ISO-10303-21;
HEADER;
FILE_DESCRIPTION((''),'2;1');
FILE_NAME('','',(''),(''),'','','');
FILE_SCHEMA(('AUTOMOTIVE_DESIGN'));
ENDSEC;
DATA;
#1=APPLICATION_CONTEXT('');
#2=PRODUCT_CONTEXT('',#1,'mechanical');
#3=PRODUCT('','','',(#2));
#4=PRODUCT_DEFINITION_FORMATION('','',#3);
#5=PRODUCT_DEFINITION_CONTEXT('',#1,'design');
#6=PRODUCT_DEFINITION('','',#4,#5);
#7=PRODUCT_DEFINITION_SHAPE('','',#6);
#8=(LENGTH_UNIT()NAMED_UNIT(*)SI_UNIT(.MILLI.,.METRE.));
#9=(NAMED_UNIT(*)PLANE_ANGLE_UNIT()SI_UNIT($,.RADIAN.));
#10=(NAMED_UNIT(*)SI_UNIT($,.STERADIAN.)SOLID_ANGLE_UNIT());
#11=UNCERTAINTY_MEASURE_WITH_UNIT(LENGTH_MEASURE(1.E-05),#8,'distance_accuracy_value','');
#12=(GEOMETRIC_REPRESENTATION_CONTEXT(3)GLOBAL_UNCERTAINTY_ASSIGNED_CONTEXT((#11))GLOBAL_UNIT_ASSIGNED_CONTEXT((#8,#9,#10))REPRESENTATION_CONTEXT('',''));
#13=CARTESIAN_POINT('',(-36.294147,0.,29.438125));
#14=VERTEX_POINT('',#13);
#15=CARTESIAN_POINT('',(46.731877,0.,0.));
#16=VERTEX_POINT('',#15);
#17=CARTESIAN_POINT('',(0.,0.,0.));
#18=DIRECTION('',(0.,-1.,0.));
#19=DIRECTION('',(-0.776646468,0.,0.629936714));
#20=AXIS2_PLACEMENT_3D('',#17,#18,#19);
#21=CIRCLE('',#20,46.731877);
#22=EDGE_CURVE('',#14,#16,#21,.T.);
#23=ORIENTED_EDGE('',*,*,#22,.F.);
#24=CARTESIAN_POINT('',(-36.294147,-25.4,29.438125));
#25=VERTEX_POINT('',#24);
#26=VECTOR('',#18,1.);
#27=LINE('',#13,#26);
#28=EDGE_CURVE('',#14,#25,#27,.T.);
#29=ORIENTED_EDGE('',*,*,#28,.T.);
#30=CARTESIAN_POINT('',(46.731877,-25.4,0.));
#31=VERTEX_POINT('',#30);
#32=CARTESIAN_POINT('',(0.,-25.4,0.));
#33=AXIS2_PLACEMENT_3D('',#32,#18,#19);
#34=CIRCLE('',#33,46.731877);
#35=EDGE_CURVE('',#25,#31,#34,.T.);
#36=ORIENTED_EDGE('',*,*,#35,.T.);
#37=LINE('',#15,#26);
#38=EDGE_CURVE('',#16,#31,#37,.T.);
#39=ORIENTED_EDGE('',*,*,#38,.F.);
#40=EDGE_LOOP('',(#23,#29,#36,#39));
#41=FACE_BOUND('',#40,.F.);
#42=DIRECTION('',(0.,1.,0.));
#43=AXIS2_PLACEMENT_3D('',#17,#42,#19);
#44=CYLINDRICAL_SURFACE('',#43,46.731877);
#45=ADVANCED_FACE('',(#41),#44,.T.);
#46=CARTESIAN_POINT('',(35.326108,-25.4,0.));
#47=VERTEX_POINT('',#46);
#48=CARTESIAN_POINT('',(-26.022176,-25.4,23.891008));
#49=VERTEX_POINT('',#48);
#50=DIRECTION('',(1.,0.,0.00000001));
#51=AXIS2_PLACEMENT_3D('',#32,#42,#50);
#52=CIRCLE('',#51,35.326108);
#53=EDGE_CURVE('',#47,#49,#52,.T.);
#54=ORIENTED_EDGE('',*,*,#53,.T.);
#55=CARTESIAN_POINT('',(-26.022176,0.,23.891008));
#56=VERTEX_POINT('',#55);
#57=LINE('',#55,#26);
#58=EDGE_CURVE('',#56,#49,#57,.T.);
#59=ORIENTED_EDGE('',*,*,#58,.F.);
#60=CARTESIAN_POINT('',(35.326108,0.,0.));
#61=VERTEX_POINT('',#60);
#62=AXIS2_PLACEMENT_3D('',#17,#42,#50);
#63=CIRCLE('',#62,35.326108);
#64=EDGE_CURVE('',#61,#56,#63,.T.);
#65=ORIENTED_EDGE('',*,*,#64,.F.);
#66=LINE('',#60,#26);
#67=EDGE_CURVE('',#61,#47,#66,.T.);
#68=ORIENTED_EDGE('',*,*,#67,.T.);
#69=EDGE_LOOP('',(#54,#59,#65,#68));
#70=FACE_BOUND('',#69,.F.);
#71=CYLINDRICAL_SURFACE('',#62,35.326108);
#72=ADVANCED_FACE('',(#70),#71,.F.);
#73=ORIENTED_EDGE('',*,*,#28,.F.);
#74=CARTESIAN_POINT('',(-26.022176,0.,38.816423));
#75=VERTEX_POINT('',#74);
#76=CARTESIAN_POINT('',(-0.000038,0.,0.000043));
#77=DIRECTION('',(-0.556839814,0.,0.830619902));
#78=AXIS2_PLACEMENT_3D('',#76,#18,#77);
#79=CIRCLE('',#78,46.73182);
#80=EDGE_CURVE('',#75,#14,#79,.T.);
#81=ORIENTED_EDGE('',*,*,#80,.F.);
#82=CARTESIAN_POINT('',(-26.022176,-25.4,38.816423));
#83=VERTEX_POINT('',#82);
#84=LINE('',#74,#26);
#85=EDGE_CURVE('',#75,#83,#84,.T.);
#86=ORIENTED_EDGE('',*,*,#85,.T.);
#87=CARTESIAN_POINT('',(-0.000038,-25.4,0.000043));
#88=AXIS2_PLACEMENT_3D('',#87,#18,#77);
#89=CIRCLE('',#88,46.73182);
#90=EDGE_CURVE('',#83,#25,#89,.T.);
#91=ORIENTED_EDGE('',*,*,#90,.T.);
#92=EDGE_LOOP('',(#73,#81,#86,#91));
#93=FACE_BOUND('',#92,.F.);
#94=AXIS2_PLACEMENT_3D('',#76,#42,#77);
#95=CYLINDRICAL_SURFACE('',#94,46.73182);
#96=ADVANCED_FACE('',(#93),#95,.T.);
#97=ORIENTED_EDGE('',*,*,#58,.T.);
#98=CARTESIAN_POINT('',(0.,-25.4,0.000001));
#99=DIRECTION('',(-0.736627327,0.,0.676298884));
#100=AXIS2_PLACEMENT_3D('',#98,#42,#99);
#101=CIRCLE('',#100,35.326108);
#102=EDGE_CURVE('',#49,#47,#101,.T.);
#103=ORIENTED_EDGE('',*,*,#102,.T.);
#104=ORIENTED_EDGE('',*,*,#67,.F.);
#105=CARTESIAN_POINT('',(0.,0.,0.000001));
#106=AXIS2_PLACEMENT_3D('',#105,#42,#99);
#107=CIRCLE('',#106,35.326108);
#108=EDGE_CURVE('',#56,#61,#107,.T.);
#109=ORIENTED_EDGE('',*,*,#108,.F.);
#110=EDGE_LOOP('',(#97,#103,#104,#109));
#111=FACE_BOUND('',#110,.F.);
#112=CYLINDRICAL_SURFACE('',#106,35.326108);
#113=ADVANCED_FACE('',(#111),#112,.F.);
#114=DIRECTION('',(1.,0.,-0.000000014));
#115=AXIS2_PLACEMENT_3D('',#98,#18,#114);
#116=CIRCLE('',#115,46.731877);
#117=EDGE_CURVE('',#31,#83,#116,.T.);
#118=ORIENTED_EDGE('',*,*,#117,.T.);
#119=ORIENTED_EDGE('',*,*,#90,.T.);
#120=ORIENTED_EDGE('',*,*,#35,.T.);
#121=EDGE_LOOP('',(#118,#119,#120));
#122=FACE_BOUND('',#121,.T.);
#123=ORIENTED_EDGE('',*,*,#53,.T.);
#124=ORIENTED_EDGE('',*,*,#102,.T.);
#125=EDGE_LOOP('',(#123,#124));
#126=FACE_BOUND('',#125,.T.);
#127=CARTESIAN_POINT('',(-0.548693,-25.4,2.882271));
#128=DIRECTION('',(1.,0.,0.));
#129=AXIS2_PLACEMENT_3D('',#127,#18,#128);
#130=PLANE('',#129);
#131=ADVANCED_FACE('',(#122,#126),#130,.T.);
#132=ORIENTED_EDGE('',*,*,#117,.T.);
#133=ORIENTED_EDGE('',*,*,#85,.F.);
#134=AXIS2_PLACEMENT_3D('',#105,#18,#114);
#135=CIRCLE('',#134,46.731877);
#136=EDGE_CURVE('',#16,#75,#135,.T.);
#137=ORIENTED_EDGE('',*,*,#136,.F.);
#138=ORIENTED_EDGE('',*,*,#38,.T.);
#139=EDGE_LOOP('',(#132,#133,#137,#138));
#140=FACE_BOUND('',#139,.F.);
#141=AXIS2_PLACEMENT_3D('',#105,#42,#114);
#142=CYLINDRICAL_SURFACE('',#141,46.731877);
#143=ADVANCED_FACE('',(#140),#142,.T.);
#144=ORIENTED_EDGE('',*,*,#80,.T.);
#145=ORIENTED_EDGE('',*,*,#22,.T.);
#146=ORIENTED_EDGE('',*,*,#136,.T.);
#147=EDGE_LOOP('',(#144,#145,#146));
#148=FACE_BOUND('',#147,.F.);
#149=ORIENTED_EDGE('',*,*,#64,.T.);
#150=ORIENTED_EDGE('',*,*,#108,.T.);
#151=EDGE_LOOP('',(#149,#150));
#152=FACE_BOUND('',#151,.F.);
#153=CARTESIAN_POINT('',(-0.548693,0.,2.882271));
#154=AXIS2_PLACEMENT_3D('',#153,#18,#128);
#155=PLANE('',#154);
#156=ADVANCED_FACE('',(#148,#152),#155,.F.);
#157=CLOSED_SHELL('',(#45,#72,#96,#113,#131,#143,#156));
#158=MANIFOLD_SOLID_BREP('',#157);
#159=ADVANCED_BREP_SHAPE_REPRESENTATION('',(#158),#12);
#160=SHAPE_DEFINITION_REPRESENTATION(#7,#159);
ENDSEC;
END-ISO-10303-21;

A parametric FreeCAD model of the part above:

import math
import FreeCAD as App
import Part
import Sketcher
from FreeCAD import Vector
Q = App.Units.Quantity

doc = App.newDocument("Part")
body = doc.addObject("PartDesign::Body", "Body")

# Sketch on XZ plane
sketch1 = body.newObject("Sketcher::SketchObject", "Sketch")
sketch1.AttachmentSupport = (doc.getObject("XZ_Plane"), [""])
sketch1.MapMode = "FlatFace"
sketch1.addGeometry([
    Part.ArcOfCircle(Part.Circle(Vector(0, 0.000001, 0), Vector(0, 0, 1), 46.731877), math.radians(-0.000001), math.radians(123.83754)),  # 0
    Part.ArcOfCircle(Part.Circle(Vector(-0.000038, 0.000043, 0), Vector(0, 0, 1), 46.73182), math.radians(123.83753), math.radians(140.954558)),  # 1
    Part.ArcOfCircle(Part.Circle(Vector(0, 0, 0), Vector(0, 0, 1), 46.731877), math.radians(140.954546), math.radians(360)),  # 2
    Part.ArcOfCircle(Part.Circle(Vector(0, 0, 0), Vector(0, 0, 1), 35.326108), math.radians(137.444901), math.radians(360.000001)),  # 3
    Part.ArcOfCircle(Part.Circle(Vector(0, 0.000001, 0), Vector(0, 0, 1), 35.326108), math.radians(-0.000001), math.radians(137.444903)),  # 4
], False)
sketch1.addConstraint([
    Sketcher.Constraint("Coincident", 0, 2, 1, 1),
    Sketcher.Constraint("Coincident", 1, 2, 2, 1),
    Sketcher.Constraint("Coincident", 2, 2, 0, 1),
    Sketcher.Constraint("Coincident", 3, 1, 4, 2),
    Sketcher.Constraint("Coincident", 4, 1, 3, 2),
    Sketcher.Constraint("Coincident", 0, 3, -1, 1),
    Sketcher.Constraint("Coincident", 2, 3, -1, 1),
    Sketcher.Constraint("Coincident", 3, 3, -1, 1),
    Sketcher.Constraint("PointOnObject", 2, 2, -1),
    Sketcher.Constraint("PointOnObject", 4, 1, -1),
    Sketcher.Constraint("Radius", 1, 46.73182),
    Sketcher.Constraint("Radius", 3, 35.326108),
    Sketcher.Constraint("Radius", 0, 46.731877),
    Sketcher.Constraint("Radius", 4, 35.326108),
    Sketcher.Constraint("DistanceY", -1, 1, 3, 1, 23.891008),
    Sketcher.Constraint("DistanceX", 0, 2, 1, 3, 26.022138),
    Sketcher.Constraint("DistanceX", 1, 2, 0, 2, 10.271971),
])
pad1 = body.newObject("PartDesign::Pad", "Pad")
pad1.Profile = sketch1
pad1.Length = Q("1 in")

doc.recompute()
